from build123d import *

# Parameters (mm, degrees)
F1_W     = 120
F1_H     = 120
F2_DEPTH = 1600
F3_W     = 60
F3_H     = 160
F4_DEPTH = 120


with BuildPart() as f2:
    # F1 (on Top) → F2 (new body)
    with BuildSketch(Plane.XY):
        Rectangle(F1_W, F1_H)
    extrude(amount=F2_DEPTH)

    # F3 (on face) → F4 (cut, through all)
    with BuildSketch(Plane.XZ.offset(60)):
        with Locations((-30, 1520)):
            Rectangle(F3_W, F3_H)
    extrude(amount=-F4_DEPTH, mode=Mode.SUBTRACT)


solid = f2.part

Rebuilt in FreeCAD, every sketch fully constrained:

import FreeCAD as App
import Part
import Sketcher

doc = App.newDocument("Part")
body = doc.addObject("PartDesign::Body", "Body")

sketch1 = doc.addObject("Sketcher::SketchObject", "Sketch")
body.addObject(sketch1)
sketch1.AttachmentSupport = (doc.XY_Plane, [""])
sketch1.MapMode = "FlatFace"
sketch1.addGeometry(Part.LineSegment(App.Vector(-60, 60, 0), App.Vector(-60, -60, 0)), False)
sketch1.addGeometry(Part.LineSegment(App.Vector(-60, -60, 0), App.Vector(60, -60, 0)), False)
sketch1.addGeometry(Part.LineSegment(App.Vector(60, -60, 0), App.Vector(60, 60, 0)), False)
sketch1.addGeometry(Part.LineSegment(App.Vector(60, 60, 0), App.Vector(-60, 60, 0)), False)
sketch1.addConstraint(Sketcher.Constraint("Coincident", 0, 2, 1, 1))
sketch1.addConstraint(Sketcher.Constraint("Coincident", 1, 2, 2, 1))
sketch1.addConstraint(Sketcher.Constraint("Coincident", 2, 2, 3, 1))
sketch1.addConstraint(Sketcher.Constraint("Coincident", 3, 2, 0, 1))
sketch1.addConstraint(Sketcher.Constraint("Vertical", 0))
sketch1.addConstraint(Sketcher.Constraint("Horizontal", 1))
sketch1.addConstraint(Sketcher.Constraint("Vertical", 2))
sketch1.addConstraint(Sketcher.Constraint("Horizontal", 3))
sketch1.addConstraint(Sketcher.Constraint("Symmetric", 0, 2, 2, 2, -1, 1))
sketch1.addConstraint(Sketcher.Constraint("Equal", 3, 0))
sketch1.addConstraint(Sketcher.Constraint("DistanceX", 1, 1, 1, 2, 120.0))
pad1 = doc.addObject("PartDesign::Pad", "Pad")
body.addObject(pad1)
pad1.Profile = sketch1
pad1.Length = 1600

sketch2 = doc.addObject("Sketcher::SketchObject", "Sketch001")
body.addObject(sketch2)
sketch2.AttachmentSupport = (doc.XZ_Plane, [""])
sketch2.MapMode = "FlatFace"
sketch2.AttachmentOffset = App.Placement(App.Vector(0, 0, 60), App.Rotation())
sketch2.addGeometry(Part.LineSegment(App.Vector(-60, 1600, 0), App.Vector(-60, 1440, 0)), False)
sketch2.addGeometry(Part.LineSegment(App.Vector(-60, 1440, 0), App.Vector(0, 1440, 0)), False)
sketch2.addGeometry(Part.LineSegment(App.Vector(0, 1440, 0), App.Vector(0, 1600, 0)), False)
sketch2.addGeometry(Part.LineSegment(App.Vector(0, 1600, 0), App.Vector(-60, 1600, 0)), False)
sketch2.addConstraint(Sketcher.Constraint("Coincident", 0, 2, 1, 1))
sketch2.addConstraint(Sketcher.Constraint("Coincident", 1, 2, 2, 1))
sketch2.addConstraint(Sketcher.Constraint("Coincident", 2, 2, 3, 1))
sketch2.addConstraint(Sketcher.Constraint("Coincident", 3, 2, 0, 1))
sketch2.addConstraint(Sketcher.Constraint("Vertical", 0))
sketch2.addConstraint(Sketcher.Constraint("Horizontal", 1))
sketch2.addConstraint(Sketcher.Constraint("Vertical", 2))
sketch2.addConstraint(Sketcher.Constraint("Horizontal", 3))
sketch2.addConstraint(Sketcher.Constraint("PointOnObject", 1, 2, -2))
sketch2.addConstraint(Sketcher.Constraint("DistanceX", 1, 1, 1, 2, 60.0))
sketch2.addConstraint(Sketcher.Constraint("DistanceY", 0, 2, 0, 1, 160.0))
sketch2.addConstraint(Sketcher.Constraint("DistanceY", -1, 1, 0, 2, 1440.0))
pocket1 = doc.addObject("PartDesign::Pocket", "Pocket")
body.addObject(pocket1)
pocket1.Profile = sketch2
pocket1.Type = "ThroughAll"

doc.recompute()
